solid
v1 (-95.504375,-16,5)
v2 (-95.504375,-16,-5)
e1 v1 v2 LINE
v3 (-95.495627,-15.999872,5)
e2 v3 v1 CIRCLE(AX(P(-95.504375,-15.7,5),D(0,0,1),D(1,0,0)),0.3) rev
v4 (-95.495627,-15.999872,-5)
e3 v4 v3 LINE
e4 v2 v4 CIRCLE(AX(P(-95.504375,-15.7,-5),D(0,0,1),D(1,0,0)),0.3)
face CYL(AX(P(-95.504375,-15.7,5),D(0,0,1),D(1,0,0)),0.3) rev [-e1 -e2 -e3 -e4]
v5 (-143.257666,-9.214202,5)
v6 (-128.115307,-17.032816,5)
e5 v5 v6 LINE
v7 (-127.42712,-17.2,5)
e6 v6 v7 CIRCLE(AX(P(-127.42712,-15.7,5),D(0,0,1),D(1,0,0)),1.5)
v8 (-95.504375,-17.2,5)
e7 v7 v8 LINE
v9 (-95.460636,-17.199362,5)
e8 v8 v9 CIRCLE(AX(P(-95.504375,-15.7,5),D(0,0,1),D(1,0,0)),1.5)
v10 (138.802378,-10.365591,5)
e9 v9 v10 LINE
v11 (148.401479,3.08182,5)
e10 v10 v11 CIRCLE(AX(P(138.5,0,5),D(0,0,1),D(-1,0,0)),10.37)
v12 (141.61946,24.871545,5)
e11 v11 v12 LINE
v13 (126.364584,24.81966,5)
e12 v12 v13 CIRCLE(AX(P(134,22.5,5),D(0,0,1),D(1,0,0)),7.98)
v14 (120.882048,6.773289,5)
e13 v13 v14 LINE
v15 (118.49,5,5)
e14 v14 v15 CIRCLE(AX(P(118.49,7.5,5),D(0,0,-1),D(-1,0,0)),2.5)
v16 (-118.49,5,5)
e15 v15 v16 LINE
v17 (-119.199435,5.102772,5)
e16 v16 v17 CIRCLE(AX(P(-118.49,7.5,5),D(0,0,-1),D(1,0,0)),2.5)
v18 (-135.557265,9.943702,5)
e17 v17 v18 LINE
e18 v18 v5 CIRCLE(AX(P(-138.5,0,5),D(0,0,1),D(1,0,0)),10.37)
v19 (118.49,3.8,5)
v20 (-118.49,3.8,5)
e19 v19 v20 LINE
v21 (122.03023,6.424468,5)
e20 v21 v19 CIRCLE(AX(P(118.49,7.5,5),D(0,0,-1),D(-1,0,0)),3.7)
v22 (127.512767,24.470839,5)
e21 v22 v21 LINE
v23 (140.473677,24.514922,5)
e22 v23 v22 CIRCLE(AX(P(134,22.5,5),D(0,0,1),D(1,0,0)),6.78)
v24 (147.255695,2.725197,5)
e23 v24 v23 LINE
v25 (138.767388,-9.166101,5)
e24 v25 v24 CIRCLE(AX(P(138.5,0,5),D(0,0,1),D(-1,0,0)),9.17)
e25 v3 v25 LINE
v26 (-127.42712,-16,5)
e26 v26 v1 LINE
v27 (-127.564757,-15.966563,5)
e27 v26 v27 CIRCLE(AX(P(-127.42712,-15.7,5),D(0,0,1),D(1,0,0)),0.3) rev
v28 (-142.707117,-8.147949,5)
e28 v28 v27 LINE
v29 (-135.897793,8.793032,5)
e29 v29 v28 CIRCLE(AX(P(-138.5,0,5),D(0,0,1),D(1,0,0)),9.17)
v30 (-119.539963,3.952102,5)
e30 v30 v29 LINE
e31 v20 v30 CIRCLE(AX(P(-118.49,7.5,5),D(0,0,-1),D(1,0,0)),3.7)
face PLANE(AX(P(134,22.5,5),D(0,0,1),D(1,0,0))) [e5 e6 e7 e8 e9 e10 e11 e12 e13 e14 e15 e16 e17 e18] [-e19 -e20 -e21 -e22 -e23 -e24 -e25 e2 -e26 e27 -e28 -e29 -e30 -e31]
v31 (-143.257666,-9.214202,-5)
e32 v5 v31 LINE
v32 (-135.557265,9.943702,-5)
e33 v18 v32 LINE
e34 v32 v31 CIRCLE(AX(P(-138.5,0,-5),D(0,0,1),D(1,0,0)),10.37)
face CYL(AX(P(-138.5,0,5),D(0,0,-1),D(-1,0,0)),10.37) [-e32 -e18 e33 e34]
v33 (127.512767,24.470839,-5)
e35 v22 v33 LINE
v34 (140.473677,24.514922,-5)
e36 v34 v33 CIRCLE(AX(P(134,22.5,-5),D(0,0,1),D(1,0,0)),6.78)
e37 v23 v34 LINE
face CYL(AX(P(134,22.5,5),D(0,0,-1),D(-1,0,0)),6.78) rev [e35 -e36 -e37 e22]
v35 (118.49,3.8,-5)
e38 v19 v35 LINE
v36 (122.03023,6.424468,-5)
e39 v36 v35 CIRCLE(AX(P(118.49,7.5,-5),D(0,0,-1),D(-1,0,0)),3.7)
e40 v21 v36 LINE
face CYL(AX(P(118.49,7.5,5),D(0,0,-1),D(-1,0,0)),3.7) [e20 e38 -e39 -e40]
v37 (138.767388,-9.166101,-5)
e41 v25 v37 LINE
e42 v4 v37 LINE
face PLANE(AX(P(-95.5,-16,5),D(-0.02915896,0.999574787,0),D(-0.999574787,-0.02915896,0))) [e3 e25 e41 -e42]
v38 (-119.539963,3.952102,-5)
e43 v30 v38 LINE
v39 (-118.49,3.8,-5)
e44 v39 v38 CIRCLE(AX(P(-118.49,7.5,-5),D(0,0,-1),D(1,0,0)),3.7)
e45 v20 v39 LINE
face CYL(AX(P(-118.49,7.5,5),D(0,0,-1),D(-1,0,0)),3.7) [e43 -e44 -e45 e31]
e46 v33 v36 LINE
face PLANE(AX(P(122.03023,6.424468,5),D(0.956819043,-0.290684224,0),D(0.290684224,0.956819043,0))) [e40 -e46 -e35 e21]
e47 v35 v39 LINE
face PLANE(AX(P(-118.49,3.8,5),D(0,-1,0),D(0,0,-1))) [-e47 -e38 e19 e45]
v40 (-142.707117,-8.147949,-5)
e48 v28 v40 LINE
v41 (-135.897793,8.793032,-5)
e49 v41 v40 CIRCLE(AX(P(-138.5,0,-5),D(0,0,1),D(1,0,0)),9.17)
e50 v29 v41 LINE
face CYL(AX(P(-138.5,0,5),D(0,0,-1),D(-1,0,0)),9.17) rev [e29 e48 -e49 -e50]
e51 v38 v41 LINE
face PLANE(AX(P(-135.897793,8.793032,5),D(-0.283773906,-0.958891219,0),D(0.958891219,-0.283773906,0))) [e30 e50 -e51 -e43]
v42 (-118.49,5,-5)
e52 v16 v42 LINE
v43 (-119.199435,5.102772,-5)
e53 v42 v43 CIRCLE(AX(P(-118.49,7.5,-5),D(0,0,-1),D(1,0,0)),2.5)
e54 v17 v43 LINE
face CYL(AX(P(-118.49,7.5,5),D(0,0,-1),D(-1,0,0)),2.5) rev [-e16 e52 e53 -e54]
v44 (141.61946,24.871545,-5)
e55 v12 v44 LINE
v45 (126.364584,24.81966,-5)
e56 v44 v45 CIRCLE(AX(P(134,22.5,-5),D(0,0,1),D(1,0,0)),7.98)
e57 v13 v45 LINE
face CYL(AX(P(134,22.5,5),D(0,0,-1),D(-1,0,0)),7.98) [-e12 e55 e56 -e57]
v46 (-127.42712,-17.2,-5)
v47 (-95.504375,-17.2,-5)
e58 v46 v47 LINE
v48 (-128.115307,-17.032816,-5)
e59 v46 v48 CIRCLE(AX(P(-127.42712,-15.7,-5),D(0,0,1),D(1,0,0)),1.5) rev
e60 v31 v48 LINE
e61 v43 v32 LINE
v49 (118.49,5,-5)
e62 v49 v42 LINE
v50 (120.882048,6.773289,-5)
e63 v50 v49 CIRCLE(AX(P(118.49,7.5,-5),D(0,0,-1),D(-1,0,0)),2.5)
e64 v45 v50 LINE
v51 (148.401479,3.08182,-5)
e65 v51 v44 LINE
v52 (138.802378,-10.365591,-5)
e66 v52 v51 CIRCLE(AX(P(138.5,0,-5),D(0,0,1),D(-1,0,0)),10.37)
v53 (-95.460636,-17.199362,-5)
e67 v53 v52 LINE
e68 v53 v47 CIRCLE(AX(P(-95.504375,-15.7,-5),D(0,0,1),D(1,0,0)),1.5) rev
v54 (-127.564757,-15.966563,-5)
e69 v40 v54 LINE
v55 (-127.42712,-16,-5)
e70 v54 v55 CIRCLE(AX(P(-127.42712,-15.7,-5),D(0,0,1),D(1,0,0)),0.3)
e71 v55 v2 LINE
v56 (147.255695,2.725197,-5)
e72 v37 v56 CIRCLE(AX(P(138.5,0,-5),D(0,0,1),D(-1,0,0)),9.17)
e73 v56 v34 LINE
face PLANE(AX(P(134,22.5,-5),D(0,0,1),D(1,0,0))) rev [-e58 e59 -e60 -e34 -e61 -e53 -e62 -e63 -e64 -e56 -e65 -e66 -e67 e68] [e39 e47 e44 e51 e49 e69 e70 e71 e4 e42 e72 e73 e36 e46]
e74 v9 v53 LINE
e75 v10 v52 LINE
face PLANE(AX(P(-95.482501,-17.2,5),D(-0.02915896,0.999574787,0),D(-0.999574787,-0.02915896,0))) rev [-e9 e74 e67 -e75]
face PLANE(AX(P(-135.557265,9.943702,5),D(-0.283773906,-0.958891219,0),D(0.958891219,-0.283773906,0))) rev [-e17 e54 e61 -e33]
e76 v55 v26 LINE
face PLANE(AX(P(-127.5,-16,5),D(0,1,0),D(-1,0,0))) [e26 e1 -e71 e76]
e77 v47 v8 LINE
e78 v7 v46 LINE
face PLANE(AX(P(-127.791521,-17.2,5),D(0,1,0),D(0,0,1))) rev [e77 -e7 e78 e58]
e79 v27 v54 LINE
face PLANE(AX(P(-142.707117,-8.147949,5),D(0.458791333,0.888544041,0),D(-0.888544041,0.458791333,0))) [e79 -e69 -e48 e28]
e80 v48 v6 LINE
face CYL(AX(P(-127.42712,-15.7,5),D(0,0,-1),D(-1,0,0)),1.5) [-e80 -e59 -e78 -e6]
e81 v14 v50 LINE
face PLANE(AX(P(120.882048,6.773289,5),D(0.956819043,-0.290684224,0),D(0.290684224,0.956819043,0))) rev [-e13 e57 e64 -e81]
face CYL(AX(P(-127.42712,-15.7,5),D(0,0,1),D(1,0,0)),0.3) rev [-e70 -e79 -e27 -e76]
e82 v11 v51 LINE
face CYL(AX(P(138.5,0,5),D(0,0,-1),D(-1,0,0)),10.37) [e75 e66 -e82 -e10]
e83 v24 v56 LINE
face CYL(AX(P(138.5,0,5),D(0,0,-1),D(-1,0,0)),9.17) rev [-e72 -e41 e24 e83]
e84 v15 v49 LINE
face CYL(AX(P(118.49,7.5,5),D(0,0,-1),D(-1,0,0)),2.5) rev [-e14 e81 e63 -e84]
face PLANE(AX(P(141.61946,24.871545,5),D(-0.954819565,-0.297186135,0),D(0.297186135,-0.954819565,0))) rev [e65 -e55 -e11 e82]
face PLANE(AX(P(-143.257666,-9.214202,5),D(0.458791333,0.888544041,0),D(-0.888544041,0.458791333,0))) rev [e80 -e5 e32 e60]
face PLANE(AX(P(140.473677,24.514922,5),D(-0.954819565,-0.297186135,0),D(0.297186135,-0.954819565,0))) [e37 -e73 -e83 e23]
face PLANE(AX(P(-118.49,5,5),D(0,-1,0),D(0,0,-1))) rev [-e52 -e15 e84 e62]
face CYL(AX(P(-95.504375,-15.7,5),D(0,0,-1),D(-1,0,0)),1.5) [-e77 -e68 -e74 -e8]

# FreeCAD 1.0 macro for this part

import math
import FreeCAD as App
import Part
import Sketcher
Q = App.Units.Quantity


def edges_at(feature, points):
    """Names of the edges that pass closest to the given points."""
    edges = feature.Shape.Edges
    near = lambda p: min(range(len(edges)), key=lambda i: edges[i].distToShape(Part.Vertex(*p))[0])
    return sorted({f"Edge{near(p) + 1}" for p in points})

doc = App.newDocument("Part")
body = doc.addObject("PartDesign::Body", "Body")

sketch1 = body.newObject("Sketcher::SketchObject", "Sketch")
sketch1.AttachmentSupport = (doc.getObject("XY_Plane"), [""])
sketch1.MapMode = "FlatFace"
sketch1.addGeometry([
    Part.LineSegment(App.Vector(148.4, 3.1, 0), App.Vector(141.6, 24.9, 0)),
    Part.ArcOfCircle(Part.Circle(App.Vector(134, 22.5, 0), App.Vector(0, 0, 1), 8), math.radians(17), math.radians(163)),
    Part.LineSegment(App.Vector(126.4, 24.8, 0), App.Vector(120.9, 6.8, 0)),
    Part.ArcOfCircle(Part.Circle(App.Vector(118.5, 7.5, 0), App.Vector(0, 0, 1), 2.5), math.radians(-90), math.radians(-17)),
    Part.LineSegment(App.Vector(118.5, 5, 0), App.Vector(-118.5, 5, 0)),
    Part.ArcOfCircle(Part.Circle(App.Vector(-118.5, 7.5, 0), App.Vector(0, 0, 1), 2.5), math.radians(-106.49), math.radians(-90)),
    Part.LineSegment(App.Vector(-119.2, 5.1, 0), App.Vector(-135.6, 9.9, 0)),
    Part.ArcOfCircle(Part.Circle(App.Vector(-138.5, 0, 0), App.Vector(0, 0, 1), 10.4), math.radians(74), math.radians(243)),
    Part.LineSegment(App.Vector(-143.3, -9.2, 0), App.Vector(-127.8, -17.2, 0)),
    Part.LineSegment(App.Vector(-127.8, -17.2, 0), App.Vector(-95.5, -17.2, 0)),
    Part.LineSegment(App.Vector(-95.5, -17.2, 0), App.Vector(138.8, -10.4, 0)),
    Part.ArcOfCircle(Part.Circle(App.Vector(138.5, 0, 0), App.Vector(0, 0, 1), 10.4), math.radians(-88), math.radians(17)),
    Part.LineSegment(App.Vector(-135.9, 8.8, 0), App.Vector(-119.5, 4, 0)),
    Part.ArcOfCircle(Part.Circle(App.Vector(-118.5, 7.5, 0), App.Vector(0, 0, 1), 3.7), math.radians(-106.49), math.radians(-90)),
    Part.LineSegment(App.Vector(-118.5, 3.8, 0), App.Vector(118.5, 3.8, 0)),
    Part.ArcOfCircle(Part.Circle(App.Vector(118.5, 7.5, 0), App.Vector(0, 0, 1), 3.7), math.radians(-90), math.radians(-17)),
    Part.LineSegment(App.Vector(122, 6.4, 0), App.Vector(127.5, 24.5, 0)),
    Part.ArcOfCircle(Part.Circle(App.Vector(134, 22.5, 0), App.Vector(0, 0, 1), 6.8), math.radians(17), math.radians(163)),
    Part.LineSegment(App.Vector(140.5, 24.5, 0), App.Vector(147.3, 2.7, 0)),
    Part.ArcOfCircle(Part.Circle(App.Vector(138.5, 0, 0), App.Vector(0, 0, 1), 9.2), math.radians(-88), math.radians(17)),
    Part.LineSegment(App.Vector(138.8, -9.2, 0), App.Vector(-95.5, -16, 0)),
    Part.LineSegment(App.Vector(-95.5, -16, 0), App.Vector(-127.5, -16, 0)),
    Part.LineSegment(App.Vector(-127.5, -16, 0), App.Vector(-142.7, -8.1, 0)),
    Part.ArcOfCircle(Part.Circle(App.Vector(-138.5, 0, 0), App.Vector(0, 0, 1), 9.2), math.radians(74), math.radians(243)),
], False)
sketch1.addConstraint([
    Sketcher.Constraint("Tangent", 0, 2, 1, 1),
    Sketcher.Constraint("Tangent", 1, 2, 2, 1),
    Sketcher.Constraint("Tangent", 2, 2, 3, 2),
    Sketcher.Constraint("Tangent", 3, 1, 4, 1),
    Sketcher.Constraint("Tangent", 4, 2, 5, 2),
    Sketcher.Constraint("Tangent", 5, 1, 6, 1),
    Sketcher.Constraint("Tangent", 6, 2, 7, 1),
    Sketcher.Constraint("Tangent", 7, 2, 8, 1),
    Sketcher.Constraint("Coincident", 8, 2, 9, 1),
    Sketcher.Constraint("Coincident", 9, 2, 10, 1),
    Sketcher.Constraint("Tangent", 10, 2, 11, 1),
    Sketcher.Constraint("Tangent", 11, 2, 0, 1),
    Sketcher.Constraint("Tangent", 12, 2, 13, 1),
    Sketcher.Constraint("Tangent", 13, 2, 14, 1),
    Sketcher.Constraint("Tangent", 14, 2, 15, 1),
    Sketcher.Constraint("Tangent", 15, 2, 16, 1),
    Sketcher.Constraint("Tangent", 16, 2, 17, 2),
    Sketcher.Constraint("Tangent", 17, 1, 18, 1),
    Sketcher.Constraint("Tangent", 18, 2, 19, 2),
    Sketcher.Constraint("Tangent", 19, 1, 20, 1),
    Sketcher.Constraint("Coincident", 20, 2, 21, 1),
    Sketcher.Constraint("Coincident", 21, 2, 22, 1),
    Sketcher.Constraint("Tangent", 22, 2, 23, 2),
    Sketcher.Constraint("Tangent", 23, 1, 12, 1),
    Sketcher.Constraint("Horizontal", 4),
    Sketcher.Constraint("Horizontal", 9),
    Sketcher.Constraint("Horizontal", 14),
    Sketcher.Constraint("Horizontal", 21),
    Sketcher.Constraint("Coincident", 13, 3, 5, 3),
    Sketcher.Constraint("Coincident", 15, 3, 3, 3),
    Sketcher.Constraint("Coincident", 17, 3, 1, 3),
    Sketcher.Constraint("Coincident", 19, 3, 11, 3),
    Sketcher.Constraint("Coincident", 23, 3, 7, 3),
    Sketcher.Constraint("Equal", 3, 5),
    Sketcher.Constraint("Equal", 7, 11),
    Sketcher.Constraint("Equal", 19, 23),
    Sketcher.Constraint("Symmetric", 7, 3, 11, 3, -1, 1),
    Sketcher.Constraint("PointOnObject", 7, 3, -1),
    Sketcher.Constraint("Parallel", 6, 12),
    Sketcher.Constraint("Parallel", 2, 16),
    Sketcher.Constraint("Parallel", 10, 20),
    Sketcher.Constraint("Parallel", 8, 22),
    Sketcher.Constraint("Radius", 3, Q("2.5 mm")),
    Sketcher.Constraint("Radius", 13, Q("3.7 mm")),
    Sketcher.Constraint("DistanceX", 21, 2, 21, 1, Q("32 mm")),
    Sketcher.Constraint("Radius", 1, Q("7.98 mm")),
    Sketcher.Constraint("Radius", 7, Q("10.37 mm")),
    Sketcher.Constraint("DistanceX", -1, 1, 1, 3, Q("134 mm")),
    Sketcher.Constraint("DistanceY", -1, 1, 3, 1, Q("5 mm")),
    Sketcher.Constraint("DistanceY", 20, 2, -1, 1, Q("16 mm")),
    Sketcher.Constraint("DistanceY", 3, 3, 1, 3, Q("15 mm")),
    Sketcher.Constraint("DistanceX", 7, 3, 11, 3, Q("277 mm")),
    Sketcher.Constraint("DistanceX", 7, 3, 21, 2, Q("11 mm")),
    Sketcher.Constraint("DistanceX", 4, 2, 4, 1, Q("236.98 mm")),
    Sketcher.Constraint("DistanceY", 8, 2, -1, 1, Q("17.2 mm")),
    Sketcher.Constraint("DistanceX", -1, 1, 3, 3, Q("118.49 mm")),
])
pad1 = body.newObject("PartDesign::Pad", "Pad")
pad1.Profile = sketch1
pad1.Length = 10
pad1.Midplane = True
doc.recompute()

fillet = body.newObject("PartDesign::Fillet", "Fillet")
fillet.Base = (pad1, edges_at(pad1, [(-127.5, -16, 0), (-95.5, -16, 0)]))
fillet.Radius = 0.3
doc.recompute()

fillet2 = body.newObject("PartDesign::Fillet", "Fillet001")
fillet2.Base = (fillet, edges_at(fillet, [(-95.483, -17.2, 0), (-127.792, -17.2, 0)]))
fillet2.Radius = 1.5

doc.recompute()
